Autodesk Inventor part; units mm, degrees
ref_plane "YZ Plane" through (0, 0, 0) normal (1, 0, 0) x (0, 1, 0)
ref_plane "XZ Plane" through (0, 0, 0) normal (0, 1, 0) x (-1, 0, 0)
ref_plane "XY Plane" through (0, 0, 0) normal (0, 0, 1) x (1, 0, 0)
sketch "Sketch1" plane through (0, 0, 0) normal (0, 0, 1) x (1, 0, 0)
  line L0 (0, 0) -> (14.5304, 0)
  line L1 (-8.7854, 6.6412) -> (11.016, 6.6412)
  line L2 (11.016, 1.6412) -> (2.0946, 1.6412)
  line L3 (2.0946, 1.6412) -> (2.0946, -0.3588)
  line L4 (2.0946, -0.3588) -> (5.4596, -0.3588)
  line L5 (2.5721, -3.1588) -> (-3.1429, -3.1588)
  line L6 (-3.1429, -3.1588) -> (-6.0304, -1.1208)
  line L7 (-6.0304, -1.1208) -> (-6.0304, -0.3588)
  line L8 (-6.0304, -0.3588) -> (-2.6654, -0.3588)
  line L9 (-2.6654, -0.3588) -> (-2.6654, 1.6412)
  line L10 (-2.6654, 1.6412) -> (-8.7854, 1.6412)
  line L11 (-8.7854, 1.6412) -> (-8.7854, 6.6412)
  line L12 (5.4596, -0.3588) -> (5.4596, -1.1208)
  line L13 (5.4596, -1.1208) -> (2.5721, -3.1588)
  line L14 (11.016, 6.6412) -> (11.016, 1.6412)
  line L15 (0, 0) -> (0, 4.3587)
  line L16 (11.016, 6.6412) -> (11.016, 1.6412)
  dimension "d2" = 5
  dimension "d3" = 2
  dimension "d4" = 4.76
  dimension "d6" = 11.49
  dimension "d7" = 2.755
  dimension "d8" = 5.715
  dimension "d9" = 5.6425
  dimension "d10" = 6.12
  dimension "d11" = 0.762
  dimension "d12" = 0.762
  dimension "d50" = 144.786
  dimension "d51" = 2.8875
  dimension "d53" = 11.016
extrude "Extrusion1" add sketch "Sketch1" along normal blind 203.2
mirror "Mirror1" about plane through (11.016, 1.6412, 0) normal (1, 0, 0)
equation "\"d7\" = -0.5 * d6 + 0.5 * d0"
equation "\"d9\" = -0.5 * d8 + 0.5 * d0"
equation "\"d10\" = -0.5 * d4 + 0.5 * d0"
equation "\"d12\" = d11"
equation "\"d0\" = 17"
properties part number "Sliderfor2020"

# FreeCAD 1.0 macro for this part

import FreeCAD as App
import Part
import Sketcher
Q = App.Units.Quantity

doc = App.newDocument("Part")
body = doc.addObject("PartDesign::Body", "Body")

# Sketch on XY plane
sketch1 = body.newObject("Sketcher::SketchObject", "Sketch")
sketch1.AttachmentSupport = (doc.getObject("XY_Plane"), [""])
sketch1.MapMode = "FlatFace"
sketch1.addGeometry([
    Part.LineSegment(App.Vector(11.016, 6.6412, 0), App.Vector(-8.7854, 6.6412, 0)),  # 0
    Part.LineSegment(App.Vector(-8.7854, 6.6412, 0), App.Vector(-8.7854, 1.6412, 0)),  # 1
    Part.LineSegment(App.Vector(-8.7854, 1.6412, 0), App.Vector(-2.6654, 1.6412, 0)),  # 2
    Part.LineSegment(App.Vector(-2.6654, 1.6412, 0), App.Vector(-2.6654, -0.3588, 0)),  # 3
    Part.LineSegment(App.Vector(-2.6654, -0.3588, 0), App.Vector(-6.0304, -0.3588, 0)),  # 4
    Part.LineSegment(App.Vector(-6.0304, -0.3588, 0), App.Vector(-6.0304, -1.1208, 0)),  # 5
    Part.LineSegment(App.Vector(-6.0304, -1.1208, 0), App.Vector(-3.1429, -3.1588, 0)),  # 6
    Part.LineSegment(App.Vector(-3.1429, -3.1588, 0), App.Vector(2.5721, -3.1588, 0)),  # 7
    Part.LineSegment(App.Vector(2.5721, -3.1588, 0), App.Vector(5.4596, -1.1208, 0)),  # 8
    Part.LineSegment(App.Vector(5.4596, -1.1208, 0), App.Vector(5.4596, -0.3588, 0)),  # 9
    Part.LineSegment(App.Vector(5.4596, -0.3588, 0), App.Vector(2.0946, -0.3588, 0)),  # 10
    Part.LineSegment(App.Vector(2.0946, -0.3588, 0), App.Vector(2.0946, 1.6412, 0)),  # 11
    Part.LineSegment(App.Vector(2.0946, 1.6412, 0), App.Vector(11.016, 1.6412, 0)),  # 12
    Part.LineSegment(App.Vector(11.016, 1.6412, 0), App.Vector(11.016, 6.6412, 0)),  # 13
], False)
sketch1.addConstraint([
    Sketcher.Constraint("Coincident", 0, 2, 1, 1),
    Sketcher.Constraint("Coincident", 1, 2, 2, 1),
    Sketcher.Constraint("Coincident", 2, 2, 3, 1),
    Sketcher.Constraint("Coincident", 3, 2, 4, 1),
    Sketcher.Constraint("Coincident", 4, 2, 5, 1),
    Sketcher.Constraint("Coincident", 5, 2, 6, 1),
    Sketcher.Constraint("Coincident", 6, 2, 7, 1),
    Sketcher.Constraint("Coincident", 7, 2, 8, 1),
    Sketcher.Constraint("Coincident", 8, 2, 9, 1),
    Sketcher.Constraint("Coincident", 9, 2, 10, 1),
    Sketcher.Constraint("Coincident", 10, 2, 11, 1),
    Sketcher.Constraint("Coincident", 11, 2, 12, 1),
    Sketcher.Constraint("Coincident", 12, 2, 13, 1),
    Sketcher.Constraint("Coincident", 13, 2, 0, 1),
    Sketcher.Constraint("Horizontal", 0),
    Sketcher.Constraint("Vertical", 1),
    Sketcher.Constraint("Horizontal", 2),
    Sketcher.Constraint("Vertical", 3),
    Sketcher.Constraint("Horizontal", 4),
    Sketcher.Constraint("Vertical", 5),
    Sketcher.Constraint("Horizontal", 7),
    Sketcher.Constraint("Vertical", 9),
    Sketcher.Constraint("Horizontal", 10),
    Sketcher.Constraint("Vertical", 11),
    Sketcher.Constraint("Horizontal", 12),
    Sketcher.Constraint("Vertical", 13),
    Sketcher.Constraint("Horizontal", 5, 2, 8, 2),
    Sketcher.Constraint("Horizontal", 4, 2, 9, 2),
    Sketcher.Constraint("Horizontal", 2, 2, 11, 2),
    Sketcher.Constraint("Equal", 4, 10),
    Sketcher.Constraint("Equal", 6, 8),
    Sketcher.Constraint("DistanceY", 5, 2, 5, 1, Q("0.03 in")),
    Sketcher.Constraint("DistanceX", 7, 1, 7, 2, Q("0.225 in")),
    Sketcher.Constraint("DistanceX", 2, 1, 2, 2, Q("6.12 mm")),
    Sketcher.Constraint("DistanceY", 1, 2, 1, 1, Q("5 mm")),
    Sketcher.Constraint("DistanceY", 3, 2, 3, 1, Q("2 mm")),
    Sketcher.Constraint("DistanceX", -1, 1, 12, 2, Q("0.4337 in")),
    Sketcher.Constraint("DistanceX", 3, 2, 10, 2, Q("0.1874 in")),
    Sketcher.Constraint("DistanceX", 1, 2, 4, 2, Q("2.755 mm")),
    Sketcher.Constraint("DistanceX", 9, 2, 12, 2, Q("0.2187559 in")),
    Sketcher.Constraint("Distance", 6, Q("3.5343 mm")),
    Sketcher.Constraint("DistanceY", -1, 1, 0, 2, Q("6.6412 mm")),
])
pad1 = body.newObject("PartDesign::Pad", "Pad")
pad1.Profile = sketch1
pad1.Length = Q("8 in")
doc.recompute()

datumplane = body.newObject("PartDesign::Plane", "DatumPlane")
datumplane.AttachmentSupport = (doc.getObject("YZ_Plane"), [""])
datumplane.MapMode = "FlatFace"
datumplane.AttachmentOffset = App.Placement(App.Vector(0, 0, 0.4337008 * 25.4), App.Rotation())
mirrored = body.newObject("PartDesign::Mirrored", "Mirrored")
mirrored.TransformMode = "Transform body"
mirrored.MirrorPlane = (datumplane, [""])
body.Tip = mirrored

doc.recompute()
